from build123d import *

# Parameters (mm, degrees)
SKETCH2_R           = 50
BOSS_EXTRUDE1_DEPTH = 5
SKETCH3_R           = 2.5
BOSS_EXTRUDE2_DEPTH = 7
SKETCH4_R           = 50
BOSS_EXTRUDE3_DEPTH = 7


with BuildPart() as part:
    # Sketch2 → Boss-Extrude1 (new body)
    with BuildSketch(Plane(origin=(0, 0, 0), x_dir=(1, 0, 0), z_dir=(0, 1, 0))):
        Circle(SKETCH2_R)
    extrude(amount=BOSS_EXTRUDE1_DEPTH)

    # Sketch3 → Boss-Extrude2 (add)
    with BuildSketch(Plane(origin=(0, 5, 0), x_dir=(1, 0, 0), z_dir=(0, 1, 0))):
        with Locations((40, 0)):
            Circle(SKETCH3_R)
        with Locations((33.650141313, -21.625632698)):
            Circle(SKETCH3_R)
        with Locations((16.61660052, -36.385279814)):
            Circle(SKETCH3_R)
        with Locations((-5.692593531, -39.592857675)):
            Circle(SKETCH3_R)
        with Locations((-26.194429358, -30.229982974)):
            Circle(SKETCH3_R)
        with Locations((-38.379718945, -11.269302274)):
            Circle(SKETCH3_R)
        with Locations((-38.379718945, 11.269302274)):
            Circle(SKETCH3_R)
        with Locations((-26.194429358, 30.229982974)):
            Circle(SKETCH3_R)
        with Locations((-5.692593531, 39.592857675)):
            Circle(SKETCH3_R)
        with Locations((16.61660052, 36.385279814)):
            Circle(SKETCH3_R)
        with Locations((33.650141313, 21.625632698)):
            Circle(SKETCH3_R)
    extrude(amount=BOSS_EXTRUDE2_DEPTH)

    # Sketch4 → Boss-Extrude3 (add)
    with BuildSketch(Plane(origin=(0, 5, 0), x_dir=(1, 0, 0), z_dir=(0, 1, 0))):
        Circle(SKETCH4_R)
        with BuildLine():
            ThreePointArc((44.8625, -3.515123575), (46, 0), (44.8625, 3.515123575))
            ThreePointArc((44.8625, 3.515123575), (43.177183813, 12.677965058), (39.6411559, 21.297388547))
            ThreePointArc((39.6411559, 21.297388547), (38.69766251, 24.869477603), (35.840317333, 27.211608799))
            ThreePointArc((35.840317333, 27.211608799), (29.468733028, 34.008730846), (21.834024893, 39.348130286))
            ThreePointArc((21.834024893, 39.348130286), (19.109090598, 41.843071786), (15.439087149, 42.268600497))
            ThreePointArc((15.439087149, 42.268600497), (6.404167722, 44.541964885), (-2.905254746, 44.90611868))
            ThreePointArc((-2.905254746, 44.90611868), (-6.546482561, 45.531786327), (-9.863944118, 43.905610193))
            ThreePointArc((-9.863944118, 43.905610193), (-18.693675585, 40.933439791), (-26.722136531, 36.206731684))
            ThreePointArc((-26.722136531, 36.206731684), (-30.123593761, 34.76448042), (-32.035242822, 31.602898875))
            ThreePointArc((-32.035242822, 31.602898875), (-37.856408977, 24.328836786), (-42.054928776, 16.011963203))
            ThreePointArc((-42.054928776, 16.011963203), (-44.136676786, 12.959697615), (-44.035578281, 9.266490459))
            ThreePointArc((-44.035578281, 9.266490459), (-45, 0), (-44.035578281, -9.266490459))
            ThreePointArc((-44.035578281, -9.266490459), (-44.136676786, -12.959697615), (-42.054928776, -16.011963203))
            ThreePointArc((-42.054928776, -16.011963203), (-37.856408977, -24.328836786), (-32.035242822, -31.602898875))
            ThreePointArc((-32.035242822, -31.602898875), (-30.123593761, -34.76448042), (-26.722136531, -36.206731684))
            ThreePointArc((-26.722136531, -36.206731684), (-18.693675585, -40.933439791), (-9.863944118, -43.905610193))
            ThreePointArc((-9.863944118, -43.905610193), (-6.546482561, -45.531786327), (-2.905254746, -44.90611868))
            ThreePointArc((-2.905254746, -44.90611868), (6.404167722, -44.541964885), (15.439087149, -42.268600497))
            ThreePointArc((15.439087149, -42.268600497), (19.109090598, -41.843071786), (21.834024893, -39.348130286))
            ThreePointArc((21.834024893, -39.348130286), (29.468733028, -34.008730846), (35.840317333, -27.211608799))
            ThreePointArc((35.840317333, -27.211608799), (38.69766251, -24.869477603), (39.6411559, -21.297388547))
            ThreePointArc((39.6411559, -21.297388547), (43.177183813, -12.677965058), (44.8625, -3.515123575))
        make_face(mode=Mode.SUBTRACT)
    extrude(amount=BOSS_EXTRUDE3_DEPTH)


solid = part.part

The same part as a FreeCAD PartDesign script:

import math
import FreeCAD as App
import Part
import Sketcher

doc = App.newDocument("Part")
body = doc.addObject("PartDesign::Body", "Body")

# Sketch on XZ plane
sketch1 = body.newObject("Sketcher::SketchObject", "Sketch")
sketch1.AttachmentSupport = (doc.getObject("XZ_Plane"), [""])
sketch1.MapMode = "FlatFace"
sketch1.addGeometry(Part.Circle(App.Vector(0, 0, 0), App.Vector(0, 0, 1), 50), False)
sketch1.addConstraint([
    Sketcher.Constraint("Coincident", 0, 3, -1, 1),
    Sketcher.Constraint("Diameter", 0, 100.0),
])
pad1 = body.newObject("PartDesign::Pad", "Pad")
pad1.Profile = sketch1
pad1.Length = 5
pad1.Reversed = True

# Sketch on XZ plane
sketch2 = body.newObject("Sketcher::SketchObject", "Sketch001")
sketch2.AttachmentSupport = (doc.getObject("XZ_Plane"), [""])
sketch2.MapMode = "FlatFace"
sketch2.AttachmentOffset = App.Placement(App.Vector(0, 0, -5), App.Rotation())
sketch2.addGeometry([
    Part.Circle(App.Vector(40, 0, 0), App.Vector(0, 0, 1), 2.5),  # 0
    Part.Circle(App.Vector(33.7, 21.6, 0), App.Vector(0, 0, 1), 2.5),  # 1
    Part.Circle(App.Vector(16.6, 36.4, 0), App.Vector(0, 0, 1), 2.5),  # 2
    Part.Circle(App.Vector(-5.7, 39.6, 0), App.Vector(0, 0, 1), 2.5),  # 3
    Part.Circle(App.Vector(-26.2, 30.2, 0), App.Vector(0, 0, 1), 2.5),  # 4
    Part.Circle(App.Vector(-38.4, 11.3, 0), App.Vector(0, 0, 1), 2.5),  # 5
    Part.Circle(App.Vector(-38.4, -11.3, 0), App.Vector(0, 0, 1), 2.5),  # 6
    Part.Circle(App.Vector(-26.2, -30.2, 0), App.Vector(0, 0, 1), 2.5),  # 7
    Part.Circle(App.Vector(-5.7, -39.6, 0), App.Vector(0, 0, 1), 2.5),  # 8
    Part.Circle(App.Vector(16.6, -36.4, 0), App.Vector(0, 0, 1), 2.5),  # 9
    Part.Circle(App.Vector(33.7, -21.6, 0), App.Vector(0, 0, 1), 2.5),  # 10
], False)
sketch2.addConstraint([
    Sketcher.Constraint("Equal", 0, 1),
    Sketcher.Constraint("Equal", 1, 2),
    Sketcher.Constraint("Equal", 2, 3),
    Sketcher.Constraint("Equal", 3, 4),
    Sketcher.Constraint("Equal", 4, 5),
    Sketcher.Constraint("Equal", 5, 6),
    Sketcher.Constraint("Equal", 6, 7),
    Sketcher.Constraint("Equal", 7, 8),
    Sketcher.Constraint("Equal", 8, 9),
    Sketcher.Constraint("Equal", 9, 10),
    Sketcher.Constraint("Symmetric", 5, 3, 6, 3, -1),
    Sketcher.Constraint("Symmetric", 4, 3, 7, 3, -1),
    Sketcher.Constraint("Symmetric", 3, 3, 8, 3, -1),
    Sketcher.Constraint("Symmetric", 2, 3, 9, 3, -1),
    Sketcher.Constraint("Symmetric", 1, 3, 10, 3, -1),
    Sketcher.Constraint("PointOnObject", 0, 3, -1),
    Sketcher.Constraint("Diameter", 0, 5.0),
    Sketcher.Constraint("DistanceX", -1, 1, 0, 3, 40.0),
    Sketcher.Constraint("DistanceX", -1, 1, 2, 3, 16.616601),
    Sketcher.Constraint("DistanceX", -1, 1, 1, 3, 33.650141),
    Sketcher.Constraint("DistanceY", -1, 1, 2, 3, 36.38528),
    Sketcher.Constraint("DistanceX", 4, 3, -1, 1, 26.194429),
    Sketcher.Constraint("DistanceX", 5, 3, -1, 1, 38.379719),
    Sketcher.Constraint("DistanceY", 1, 3, 4, 3, 8.60435),
    Sketcher.Constraint("DistanceY", 5, 3, 4, 3, 18.960681),
    Sketcher.Constraint("DistanceY", 6, 3, 3, 3, 50.86216),
    Sketcher.Constraint("DistanceY", -1, 1, 1, 3, 21.625633),
    Sketcher.Constraint("DistanceX", 3, 3, -1, 1, 5.692594),
])
pad2 = body.newObject("PartDesign::Pad", "Pad001")
pad2.Profile = sketch2
pad2.Length = 7
pad2.Reversed = True

# Sketch on XZ plane
sketch3 = body.newObject("Sketcher::SketchObject", "Sketch002")
sketch3.AttachmentSupport = (doc.getObject("XZ_Plane"), [""])
sketch3.MapMode = "FlatFace"
sketch3.AttachmentOffset = App.Placement(App.Vector(0, 0, -5), App.Rotation())
sketch3.addGeometry([
    Part.Circle(App.Vector(0, 0, 0), App.Vector(0, 0, 1), 50),  # 0
    Part.ArcOfCircle(Part.Circle(App.Vector(40, 0, 0), App.Vector(0, 0, 1), 6), math.radians(-36), math.radians(36)),  # 1
    Part.ArcOfCircle(Part.Circle(App.Vector(0, 0, 0), App.Vector(0, 0, 1), 45), math.radians(4), math.radians(28)),  # 2
    Part.ArcOfCircle(Part.Circle(App.Vector(34, 22, 0), App.Vector(0, 0, 1), 6), math.radians(-3), math.radians(69)),  # 3
    Part.ArcOfCircle(Part.Circle(App.Vector(0, 0, 0), App.Vector(0, 0, 1), 45), math.radians(37), math.radians(61)),  # 4
    Part.ArcOfCircle(Part.Circle(App.Vector(17, 36, 0), App.Vector(0, 0, 1), 6), math.radians(30), math.radians(101)),  # 5
    Part.ArcOfCircle(Part.Circle(App.Vector(0, 0, 0), App.Vector(0, 0, 1), 45), math.radians(70), math.radians(94)),  # 6
    Part.ArcOfCircle(Part.Circle(App.Vector(-6, 40, 0), App.Vector(0, 0, 1), 6), math.radians(62), math.radians(134)),  # 7
    Part.ArcOfCircle(Part.Circle(App.Vector(0, 0, 0), App.Vector(0, 0, 1), 45), math.radians(103), math.radians(126)),  # 8
    Part.ArcOfCircle(Part.Circle(App.Vector(-26, 30, 0), App.Vector(0, 0, 1), 6), math.radians(95), math.radians(167)),  # 9
    Part.ArcOfCircle(Part.Circle(App.Vector(0, 0, 0), App.Vector(0, 0, 1), 45), math.radians(135), math.radians(159)),  # 10
    Part.ArcOfCircle(Part.Circle(App.Vector(-38, 11, 0), App.Vector(0, 0, 1), 6), math.radians(128), math.radians(199)),  # 11
    Part.ArcOfCircle(Part.Circle(App.Vector(0, 0, 0), App.Vector(0, 0, 1), 45), math.radians(168), math.radians(192)),  # 12
    Part.ArcOfCircle(Part.Circle(App.Vector(-38, -11, 0), App.Vector(0, 0, 1), 6), math.radians(161), math.radians(232)),  # 13
    Part.ArcOfCircle(Part.Circle(App.Vector(0, 0, 0), App.Vector(0, 0, 1), 45), math.radians(-159), math.radians(-135)),  # 14
    Part.ArcOfCircle(Part.Circle(App.Vector(-26, -30, 0), App.Vector(0, 0, 1), 6), math.radians(-167), math.radians(-95)),  # 15
    Part.ArcOfCircle(Part.Circle(App.Vector(0, 0, 0), App.Vector(0, 0, 1), 45), math.radians(-126), math.radians(-103)),  # 16
    Part.ArcOfCircle(Part.Circle(App.Vector(-6, -40, 0), App.Vector(0, 0, 1), 6), math.radians(-134), math.radians(-62)),  # 17
    Part.ArcOfCircle(Part.Circle(App.Vector(0, 0, 0), App.Vector(0, 0, 1), 45), math.radians(-94), math.radians(-70)),  # 18
    Part.ArcOfCircle(Part.Circle(App.Vector(17, -36, 0), App.Vector(0, 0, 1), 6), math.radians(-101), math.radians(-30)),  # 19
    Part.ArcOfCircle(Part.Circle(App.Vector(0, 0, 0), App.Vector(0, 0, 1), 45), math.radians(-61), math.radians(-37)),  # 20
    Part.ArcOfCircle(Part.Circle(App.Vector(34, -22, 0), App.Vector(0, 0, 1), 6), math.radians(-69), math.radians(3)),  # 21
    Part.ArcOfCircle(Part.Circle(App.Vector(0, 0, 0), App.Vector(0, 0, 1), 45), math.radians(-28), math.radians(-4)),  # 22
], False)
sketch3.addConstraint([
    Sketcher.Constraint("Coincident", 1, 2, 2, 1),
    Sketcher.Constraint("Coincident", 2, 2, 3, 1),
    Sketcher.Constraint("Coincident", 3, 2, 4, 1),
    Sketcher.Constraint("Coincident", 4, 2, 5, 1),
    Sketcher.Constraint("Coincident", 5, 2, 6, 1),
    Sketcher.Constraint("Coincident", 6, 2, 7, 1),
    Sketcher.Constraint("Coincident", 7, 2, 8, 1),
    Sketcher.Constraint("Coincident", 8, 2, 9, 1),
    Sketcher.Constraint("Coincident", 9, 2, 10, 1),
    Sketcher.Constraint("Coincident", 10, 2, 11, 1),
    Sketcher.Constraint("Coincident", 11, 2, 12, 1),
    Sketcher.Constraint("Coincident", 12, 2, 13, 1),
    Sketcher.Constraint("Coincident", 13, 2, 14, 1),
    Sketcher.Constraint("Coincident", 14, 2, 15, 1),
    Sketcher.Constraint("Coincident", 15, 2, 16, 1),
    Sketcher.Constraint("Coincident", 16, 2, 17, 1),
    Sketcher.Constraint("Coincident", 17, 2, 18, 1),
    Sketcher.Constraint("Coincident", 18, 2, 19, 1),
    Sketcher.Constraint("Coincident", 19, 2, 20, 1),
    Sketcher.Constraint("Coincident", 20, 2, 21, 1),
    Sketcher.Constraint("Coincident", 21, 2, 22, 1),
    Sketcher.Constraint("Coincident", 22, 2, 1, 1),
    Sketcher.Constraint("Coincident", 0, 3, -1, 1),
    Sketcher.Constraint("Coincident", 2, 3, -1, 1),
    Sketcher.Constraint("Coincident", 4, 3, -1, 1),
    Sketcher.Constraint("Coincident", 6, 3, -1, 1),
    Sketcher.Constraint("Coincident", 8, 3, -1, 1),
    Sketcher.Constraint("Coincident", 10, 3, -1, 1),
    Sketcher.Constraint("Coincident", 12, 3, -1, 1),
    Sketcher.Constraint("Coincident", 14, 3, -1, 1),
    Sketcher.Constraint("Coincident", 16, 3, -1, 1),
    Sketcher.Constraint("Coincident", 18, 3, -1, 1),
    Sketcher.Constraint("Coincident", 20, 3, -1, 1),
    Sketcher.Constraint("Coincident", 22, 3, -1, 1),
    Sketcher.Constraint("Equal", 1, 3),
    Sketcher.Constraint("Equal", 2, 4),
    Sketcher.Constraint("Equal", 3, 5),
    Sketcher.Constraint("Equal", 4, 6),
    Sketcher.Constraint("Equal", 5, 7),
    Sketcher.Constraint("Equal", 6, 8),
    Sketcher.Constraint("Equal", 7, 9),
    Sketcher.Constraint("Equal", 8, 10),
    Sketcher.Constraint("Equal", 9, 11),
    Sketcher.Constraint("Equal", 10, 12),
    Sketcher.Constraint("Equal", 11, 13),
    Sketcher.Constraint("Equal", 12, 14),
    Sketcher.Constraint("Equal", 13, 15),
    Sketcher.Constraint("Equal", 14, 16),
    Sketcher.Constraint("Equal", 15, 17),
    Sketcher.Constraint("Equal", 16, 18),
    Sketcher.Constraint("Equal", 17, 19),
    Sketcher.Constraint("Equal", 18, 20),
    Sketcher.Constraint("Equal", 19, 21),
    Sketcher.Constraint("Equal", 20, 22),
    Sketcher.Constraint("Symmetric", 11, 3, 13, 3, -1),
    Sketcher.Constraint("Symmetric", 9, 3, 15, 3, -1),
    Sketcher.Constraint("Symmetric", 7, 3, 17, 3, -1),
    Sketcher.Constraint("Symmetric", 5, 3, 19, 3, -1),
    Sketcher.Constraint("Symmetric", 3, 3, 21, 3, -1),
    Sketcher.Constraint("PointOnObject", 1, 3, -1),
    Sketcher.Constraint("Diameter", 0, 100.0),
    Sketcher.Constraint("Radius", 1, 6.0),
    Sketcher.Constraint("Radius", 2, 45.0),
    Sketcher.Constraint("DistanceX", -1, 1, 1, 3, 40.0),
    Sketcher.Constraint("DistanceX", -1, 1, 5, 3, 16.616601),
    Sketcher.Constraint("DistanceY", -1, 1, 5, 2, 42.2686),
    Sketcher.Constraint("DistanceY", -1, 1, 9, 2, 31.602899),
    Sketcher.Constraint("DistanceX", 9, 2, 7, 2, 22.171299),
    Sketcher.Constraint("DistanceX", 10, 2, 9, 3, 15.860499),
    Sketcher.Constraint("DistanceX", -1, 1, 3, 3, 33.650141),
    Sketcher.Constraint("DistanceX", 9, 3, -1, 1, 26.194429),
    Sketcher.Constraint("DistanceX", 11, 3, -1, 1, 38.379719),
    Sketcher.Constraint("DistanceY", -1, 1, 3, 2, 27.211609),
    Sketcher.Constraint("DistanceY", -1, 1, 6, 2, 44.906119),
])
pad3 = body.newObject("PartDesign::Pad", "Pad002")
pad3.Profile = sketch3
pad3.Length = 7
pad3.Reversed = True

doc.recompute()
